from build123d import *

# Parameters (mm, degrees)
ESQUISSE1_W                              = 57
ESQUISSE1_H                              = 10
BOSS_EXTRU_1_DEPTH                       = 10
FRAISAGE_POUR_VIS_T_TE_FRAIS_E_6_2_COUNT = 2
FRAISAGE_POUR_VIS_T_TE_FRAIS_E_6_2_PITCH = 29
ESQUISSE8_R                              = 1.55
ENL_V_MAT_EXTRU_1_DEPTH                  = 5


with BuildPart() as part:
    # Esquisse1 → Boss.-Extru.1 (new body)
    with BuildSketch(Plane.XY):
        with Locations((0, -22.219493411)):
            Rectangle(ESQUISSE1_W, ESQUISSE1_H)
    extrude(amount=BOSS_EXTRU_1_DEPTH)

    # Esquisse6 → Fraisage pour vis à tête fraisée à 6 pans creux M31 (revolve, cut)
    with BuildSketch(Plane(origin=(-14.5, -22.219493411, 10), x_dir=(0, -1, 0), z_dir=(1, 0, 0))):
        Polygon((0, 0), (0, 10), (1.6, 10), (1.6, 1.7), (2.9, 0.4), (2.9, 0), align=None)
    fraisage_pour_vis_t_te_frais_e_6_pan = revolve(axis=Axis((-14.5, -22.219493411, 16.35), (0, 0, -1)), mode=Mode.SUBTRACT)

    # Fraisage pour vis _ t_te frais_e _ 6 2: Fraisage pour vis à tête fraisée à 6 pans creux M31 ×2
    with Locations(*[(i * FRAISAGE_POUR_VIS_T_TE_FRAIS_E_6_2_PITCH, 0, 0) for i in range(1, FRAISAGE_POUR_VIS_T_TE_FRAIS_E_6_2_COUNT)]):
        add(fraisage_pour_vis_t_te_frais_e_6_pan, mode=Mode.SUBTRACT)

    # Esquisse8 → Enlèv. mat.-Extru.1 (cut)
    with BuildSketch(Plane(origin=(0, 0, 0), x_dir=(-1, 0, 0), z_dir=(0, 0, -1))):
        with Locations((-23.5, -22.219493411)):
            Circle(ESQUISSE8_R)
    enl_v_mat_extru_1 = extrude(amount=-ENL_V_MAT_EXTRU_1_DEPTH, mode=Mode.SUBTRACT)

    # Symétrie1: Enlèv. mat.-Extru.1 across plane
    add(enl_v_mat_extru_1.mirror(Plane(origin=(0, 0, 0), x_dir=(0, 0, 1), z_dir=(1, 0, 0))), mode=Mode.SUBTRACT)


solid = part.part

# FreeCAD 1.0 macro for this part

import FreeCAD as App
import Part
import Sketcher
Q = App.Units.Quantity

doc = App.newDocument("Part")
body = doc.addObject("PartDesign::Body", "Body")

sketch1 = body.newObject("Sketcher::SketchObject", "Sketch")
sketch1.AttachmentSupport = (doc.getObject("XY_Plane"), [""])
sketch1.MapMode = "FlatFace"
sketch1.addGeometry(Part.LineSegment(App.Vector(-28.5, -17.219493, 0), App.Vector(-28.5, -27.219493, 0)), False)
sketch1.addGeometry(Part.LineSegment(App.Vector(-28.5, -27.219493, 0), App.Vector(28.5, -27.219493, 0)), False)
sketch1.addGeometry(Part.LineSegment(App.Vector(28.5, -27.219493, 0), App.Vector(28.5, -17.219493, 0)), False)
sketch1.addGeometry(Part.LineSegment(App.Vector(28.5, -17.219493, 0), App.Vector(-28.5, -17.219493, 0)), False)
sketch1.addConstraint(Sketcher.Constraint("Coincident", 0, 2, 1, 1))
sketch1.addConstraint(Sketcher.Constraint("Coincident", 1, 2, 2, 1))
sketch1.addConstraint(Sketcher.Constraint("Coincident", 2, 2, 3, 1))
sketch1.addConstraint(Sketcher.Constraint("Coincident", 3, 2, 0, 1))
sketch1.addConstraint(Sketcher.Constraint("Vertical", 0))
sketch1.addConstraint(Sketcher.Constraint("Horizontal", 1))
sketch1.addConstraint(Sketcher.Constraint("Vertical", 2))
sketch1.addConstraint(Sketcher.Constraint("Horizontal", 3))
sketch1.addConstraint(Sketcher.Constraint("DistanceX", 1, 1, 1, 2, 57.0))
sketch1.addConstraint(Sketcher.Constraint("DistanceY", 0, 2, 0, 1, 10.0))
sketch1.addConstraint(Sketcher.Constraint("DistanceX", 0, 2, -1, 1, 28.5))
sketch1.addConstraint(Sketcher.Constraint("DistanceY", 0, 2, -1, 1, 27.219493))
pad1 = body.newObject("PartDesign::Pad", "Pad")
pad1.Profile = sketch1
pad1.Length = 10

sketch2 = body.newObject("Sketcher::SketchObject", "Sketch001")
sketch2.AttachmentSupport = (doc.getObject("YZ_Plane"), [""])
sketch2.MapMode = "FlatFace"
sketch2.AttachmentOffset = App.Placement(App.Vector(0, 0, -14.5), App.Rotation())
sketch2.addGeometry(Part.LineSegment(App.Vector(-22.219493, 0, 0), App.Vector(-22.219493, 10, 0)), False)
sketch2.addGeometry(Part.LineSegment(App.Vector(-22.219493, 10, 0), App.Vector(-25.119493, 10, 0)), False)
sketch2.addGeometry(Part.LineSegment(App.Vector(-25.119493, 10, 0), App.Vector(-25.119493, 9.6, 0)), False)
sketch2.addGeometry(Part.LineSegment(App.Vector(-25.119493, 9.6, 0), App.Vector(-23.819493, 8.3, 0)), False)
sketch2.addGeometry(Part.LineSegment(App.Vector(-23.819493, 8.3, 0), App.Vector(-23.819493, 0, 0)), False)
sketch2.addGeometry(Part.LineSegment(App.Vector(-23.819493, 0, 0), App.Vector(-22.219493, 0, 0)), False)
sketch2.addGeometry(Part.LineSegment(App.Vector(-22.219493, 10, 0), App.Vector(-22.219493, 0, 0)), True)
sketch2.addConstraint(Sketcher.Constraint("Coincident", 0, 2, 1, 1))
sketch2.addConstraint(Sketcher.Constraint("Coincident", 1, 2, 2, 1))
sketch2.addConstraint(Sketcher.Constraint("Coincident", 2, 2, 3, 1))
sketch2.addConstraint(Sketcher.Constraint("Coincident", 3, 2, 4, 1))
sketch2.addConstraint(Sketcher.Constraint("Coincident", 4, 2, 5, 1))
sketch2.addConstraint(Sketcher.Constraint("Coincident", 5, 2, 0, 1))
sketch2.addConstraint(Sketcher.Constraint("Vertical", 0))
sketch2.addConstraint(Sketcher.Constraint("Horizontal", 1))
sketch2.addConstraint(Sketcher.Constraint("Vertical", 2))
sketch2.addConstraint(Sketcher.Constraint("Vertical", 4))
sketch2.addConstraint(Sketcher.Constraint("Horizontal", 5))
sketch2.addConstraint(Sketcher.Constraint("Vertical", 6))
sketch2.addConstraint(Sketcher.Constraint("Coincident", 6, 1, 0, 2))
sketch2.addConstraint(Sketcher.Constraint("PointOnObject", 4, 2, -1))
sketch2.addConstraint(Sketcher.Constraint("PointOnObject", 6, 2, -1))
sketch2.addConstraint(Sketcher.Constraint("DistanceY", 0, 1, 0, 2, 10.0))
sketch2.addConstraint(Sketcher.Constraint("Angle", 3, Q("-45 deg")))
sketch2.addConstraint(Sketcher.Constraint("DistanceX", 1, 2, 1, 1, 2.9))
sketch2.addConstraint(Sketcher.Constraint("DistanceX", 5, 1, 5, 2, 1.6))
sketch2.addConstraint(Sketcher.Constraint("DistanceY", 2, 2, 2, 1, 0.4))
sketch2.addConstraint(Sketcher.Constraint("DistanceX", 0, 2, -1, 1, 22.219493))
groove = body.newObject("PartDesign::Groove", "Groove")
groove.Profile = sketch2
groove.ReferenceAxis = (sketch2, ["Axis0"])
groove.Angle = 360
doc.recompute()

linearpattern = body.newObject("PartDesign::LinearPattern", "LinearPattern")
linearpattern.Originals = [groove]
linearpattern.Direction = (doc.getObject("X_Axis"), [""])
linearpattern.Mode = "offset"
linearpattern.Offset = 29
linearpattern.Occurrences = 2
body.Tip = linearpattern

sketch3 = body.newObject("Sketcher::SketchObject", "Sketch002")
sketch3.AttachmentSupport = (doc.getObject("XY_Plane"), [""])
sketch3.MapMode = "FlatFace"
sketch3.addGeometry(Part.Circle(App.Vector(23.5, -22.219493, 0), App.Vector(0, 0, 1), 1.55), False)
sketch3.addConstraint(Sketcher.Constraint("Diameter", 0, 3.1))
sketch3.addConstraint(Sketcher.Constraint("DistanceX", -1, 1, 0, 3, 23.5))
sketch3.addConstraint(Sketcher.Constraint("DistanceY", 0, 3, -1, 1, 22.219493))
pocket1 = body.newObject("PartDesign::Pocket", "Pocket")
pocket1.Profile = sketch3
pocket1.Length = 5
pocket1.Reversed = True
doc.recompute()

mirrored = body.newObject("PartDesign::Mirrored", "Mirrored")
mirrored.Originals = [pocket1]
mirrored.MirrorPlane = (doc.getObject("YZ_Plane"), [""])
body.Tip = mirrored

doc.recompute()
